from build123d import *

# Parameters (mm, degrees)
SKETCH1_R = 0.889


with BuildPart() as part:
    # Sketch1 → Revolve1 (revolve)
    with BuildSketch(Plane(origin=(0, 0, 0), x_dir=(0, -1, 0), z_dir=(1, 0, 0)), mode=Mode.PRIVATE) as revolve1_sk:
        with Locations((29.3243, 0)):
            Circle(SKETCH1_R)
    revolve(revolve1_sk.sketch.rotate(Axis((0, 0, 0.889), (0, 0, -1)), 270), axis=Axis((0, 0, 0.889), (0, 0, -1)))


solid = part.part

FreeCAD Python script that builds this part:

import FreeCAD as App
import Part
import Sketcher
Q = App.Units.Quantity

doc = App.newDocument("Part")
body = doc.addObject("PartDesign::Body", "Body")

sketch1 = body.newObject("Sketcher::SketchObject", "Sketch")
sketch1.AttachmentSupport = (doc.getObject("YZ_Plane"), [""])
sketch1.MapMode = "FlatFace"
sketch1.addGeometry(Part.Circle(App.Vector(-29.3, 0, 0), App.Vector(0, 0, 1), 0.9), False)
sketch1.addConstraint([
    Sketcher.Constraint("PointOnObject", 0, 3, -1),
    Sketcher.Constraint("Diameter", 0, Q("0.07 in")),
    Sketcher.Constraint("DistanceX", 0, 3, -1, 1, Q("1.1545 in")),
])
revolution = body.newObject("PartDesign::Revolution", "Revolution")
revolution.Profile = sketch1
revolution.ReferenceAxis = (sketch1, ["V_Axis"])
revolution.Angle = 360

doc.recompute()
